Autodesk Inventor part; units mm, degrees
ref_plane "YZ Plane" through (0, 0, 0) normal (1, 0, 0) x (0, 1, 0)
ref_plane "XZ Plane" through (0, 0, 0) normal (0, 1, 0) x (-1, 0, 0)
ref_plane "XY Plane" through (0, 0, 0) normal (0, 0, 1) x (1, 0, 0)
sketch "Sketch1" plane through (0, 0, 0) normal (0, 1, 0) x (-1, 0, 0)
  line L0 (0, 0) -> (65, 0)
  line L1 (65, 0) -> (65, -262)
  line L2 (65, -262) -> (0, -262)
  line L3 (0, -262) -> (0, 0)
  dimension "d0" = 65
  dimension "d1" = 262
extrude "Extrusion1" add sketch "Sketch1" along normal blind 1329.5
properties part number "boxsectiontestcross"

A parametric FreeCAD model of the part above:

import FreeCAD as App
import Part
import Sketcher
from FreeCAD import Vector
Q = App.Units.Quantity


def add_polygon(sketch, points):
    """Adds a closed chain of lines whose ends are joined by coincident constraints."""
    first, n = sketch.GeometryCount, len(points)
    for a, b in zip(points, points[1:] + points[:1]):
        sketch.addGeometry(Part.LineSegment(App.Vector(*a, 0), App.Vector(*b, 0)), False)
    for i in range(n):
        sketch.addConstraint(Sketcher.Constraint("Coincident", first + i, 2, first + (i + 1) % n, 1))

doc = App.newDocument("Part")
body = doc.addObject("PartDesign::Body", "Body")

# Sketch on XZ plane
sketch1 = body.newObject("Sketcher::SketchObject", "Sketch")
sketch1.AttachmentSupport = (doc.getObject("XZ_Plane"), [""])
sketch1.MapMode = "FlatFace"
add_polygon(sketch1, [(-65, 0), (0, 0), (0, -262), (-65, -262)])  # lines 0-3
sketch1.addConstraint([
    Sketcher.Constraint("Horizontal", 0),
    Sketcher.Constraint("Vertical", 1),
    Sketcher.Constraint("Horizontal", 2),
    Sketcher.Constraint("Vertical", 3),
    Sketcher.Constraint("Coincident", 0, 2, -1, 1),
    Sketcher.Constraint("DistanceX", 0, 1, 0, 2, Q("65 mm")),
    Sketcher.Constraint("DistanceY", 1, 2, 1, 1, Q("262 mm")),
])
pad1 = body.newObject("PartDesign::Pad", "Pad")
pad1.Profile = sketch1
pad1.Length = 1329.5
pad1.Reversed = True

doc.recompute()
